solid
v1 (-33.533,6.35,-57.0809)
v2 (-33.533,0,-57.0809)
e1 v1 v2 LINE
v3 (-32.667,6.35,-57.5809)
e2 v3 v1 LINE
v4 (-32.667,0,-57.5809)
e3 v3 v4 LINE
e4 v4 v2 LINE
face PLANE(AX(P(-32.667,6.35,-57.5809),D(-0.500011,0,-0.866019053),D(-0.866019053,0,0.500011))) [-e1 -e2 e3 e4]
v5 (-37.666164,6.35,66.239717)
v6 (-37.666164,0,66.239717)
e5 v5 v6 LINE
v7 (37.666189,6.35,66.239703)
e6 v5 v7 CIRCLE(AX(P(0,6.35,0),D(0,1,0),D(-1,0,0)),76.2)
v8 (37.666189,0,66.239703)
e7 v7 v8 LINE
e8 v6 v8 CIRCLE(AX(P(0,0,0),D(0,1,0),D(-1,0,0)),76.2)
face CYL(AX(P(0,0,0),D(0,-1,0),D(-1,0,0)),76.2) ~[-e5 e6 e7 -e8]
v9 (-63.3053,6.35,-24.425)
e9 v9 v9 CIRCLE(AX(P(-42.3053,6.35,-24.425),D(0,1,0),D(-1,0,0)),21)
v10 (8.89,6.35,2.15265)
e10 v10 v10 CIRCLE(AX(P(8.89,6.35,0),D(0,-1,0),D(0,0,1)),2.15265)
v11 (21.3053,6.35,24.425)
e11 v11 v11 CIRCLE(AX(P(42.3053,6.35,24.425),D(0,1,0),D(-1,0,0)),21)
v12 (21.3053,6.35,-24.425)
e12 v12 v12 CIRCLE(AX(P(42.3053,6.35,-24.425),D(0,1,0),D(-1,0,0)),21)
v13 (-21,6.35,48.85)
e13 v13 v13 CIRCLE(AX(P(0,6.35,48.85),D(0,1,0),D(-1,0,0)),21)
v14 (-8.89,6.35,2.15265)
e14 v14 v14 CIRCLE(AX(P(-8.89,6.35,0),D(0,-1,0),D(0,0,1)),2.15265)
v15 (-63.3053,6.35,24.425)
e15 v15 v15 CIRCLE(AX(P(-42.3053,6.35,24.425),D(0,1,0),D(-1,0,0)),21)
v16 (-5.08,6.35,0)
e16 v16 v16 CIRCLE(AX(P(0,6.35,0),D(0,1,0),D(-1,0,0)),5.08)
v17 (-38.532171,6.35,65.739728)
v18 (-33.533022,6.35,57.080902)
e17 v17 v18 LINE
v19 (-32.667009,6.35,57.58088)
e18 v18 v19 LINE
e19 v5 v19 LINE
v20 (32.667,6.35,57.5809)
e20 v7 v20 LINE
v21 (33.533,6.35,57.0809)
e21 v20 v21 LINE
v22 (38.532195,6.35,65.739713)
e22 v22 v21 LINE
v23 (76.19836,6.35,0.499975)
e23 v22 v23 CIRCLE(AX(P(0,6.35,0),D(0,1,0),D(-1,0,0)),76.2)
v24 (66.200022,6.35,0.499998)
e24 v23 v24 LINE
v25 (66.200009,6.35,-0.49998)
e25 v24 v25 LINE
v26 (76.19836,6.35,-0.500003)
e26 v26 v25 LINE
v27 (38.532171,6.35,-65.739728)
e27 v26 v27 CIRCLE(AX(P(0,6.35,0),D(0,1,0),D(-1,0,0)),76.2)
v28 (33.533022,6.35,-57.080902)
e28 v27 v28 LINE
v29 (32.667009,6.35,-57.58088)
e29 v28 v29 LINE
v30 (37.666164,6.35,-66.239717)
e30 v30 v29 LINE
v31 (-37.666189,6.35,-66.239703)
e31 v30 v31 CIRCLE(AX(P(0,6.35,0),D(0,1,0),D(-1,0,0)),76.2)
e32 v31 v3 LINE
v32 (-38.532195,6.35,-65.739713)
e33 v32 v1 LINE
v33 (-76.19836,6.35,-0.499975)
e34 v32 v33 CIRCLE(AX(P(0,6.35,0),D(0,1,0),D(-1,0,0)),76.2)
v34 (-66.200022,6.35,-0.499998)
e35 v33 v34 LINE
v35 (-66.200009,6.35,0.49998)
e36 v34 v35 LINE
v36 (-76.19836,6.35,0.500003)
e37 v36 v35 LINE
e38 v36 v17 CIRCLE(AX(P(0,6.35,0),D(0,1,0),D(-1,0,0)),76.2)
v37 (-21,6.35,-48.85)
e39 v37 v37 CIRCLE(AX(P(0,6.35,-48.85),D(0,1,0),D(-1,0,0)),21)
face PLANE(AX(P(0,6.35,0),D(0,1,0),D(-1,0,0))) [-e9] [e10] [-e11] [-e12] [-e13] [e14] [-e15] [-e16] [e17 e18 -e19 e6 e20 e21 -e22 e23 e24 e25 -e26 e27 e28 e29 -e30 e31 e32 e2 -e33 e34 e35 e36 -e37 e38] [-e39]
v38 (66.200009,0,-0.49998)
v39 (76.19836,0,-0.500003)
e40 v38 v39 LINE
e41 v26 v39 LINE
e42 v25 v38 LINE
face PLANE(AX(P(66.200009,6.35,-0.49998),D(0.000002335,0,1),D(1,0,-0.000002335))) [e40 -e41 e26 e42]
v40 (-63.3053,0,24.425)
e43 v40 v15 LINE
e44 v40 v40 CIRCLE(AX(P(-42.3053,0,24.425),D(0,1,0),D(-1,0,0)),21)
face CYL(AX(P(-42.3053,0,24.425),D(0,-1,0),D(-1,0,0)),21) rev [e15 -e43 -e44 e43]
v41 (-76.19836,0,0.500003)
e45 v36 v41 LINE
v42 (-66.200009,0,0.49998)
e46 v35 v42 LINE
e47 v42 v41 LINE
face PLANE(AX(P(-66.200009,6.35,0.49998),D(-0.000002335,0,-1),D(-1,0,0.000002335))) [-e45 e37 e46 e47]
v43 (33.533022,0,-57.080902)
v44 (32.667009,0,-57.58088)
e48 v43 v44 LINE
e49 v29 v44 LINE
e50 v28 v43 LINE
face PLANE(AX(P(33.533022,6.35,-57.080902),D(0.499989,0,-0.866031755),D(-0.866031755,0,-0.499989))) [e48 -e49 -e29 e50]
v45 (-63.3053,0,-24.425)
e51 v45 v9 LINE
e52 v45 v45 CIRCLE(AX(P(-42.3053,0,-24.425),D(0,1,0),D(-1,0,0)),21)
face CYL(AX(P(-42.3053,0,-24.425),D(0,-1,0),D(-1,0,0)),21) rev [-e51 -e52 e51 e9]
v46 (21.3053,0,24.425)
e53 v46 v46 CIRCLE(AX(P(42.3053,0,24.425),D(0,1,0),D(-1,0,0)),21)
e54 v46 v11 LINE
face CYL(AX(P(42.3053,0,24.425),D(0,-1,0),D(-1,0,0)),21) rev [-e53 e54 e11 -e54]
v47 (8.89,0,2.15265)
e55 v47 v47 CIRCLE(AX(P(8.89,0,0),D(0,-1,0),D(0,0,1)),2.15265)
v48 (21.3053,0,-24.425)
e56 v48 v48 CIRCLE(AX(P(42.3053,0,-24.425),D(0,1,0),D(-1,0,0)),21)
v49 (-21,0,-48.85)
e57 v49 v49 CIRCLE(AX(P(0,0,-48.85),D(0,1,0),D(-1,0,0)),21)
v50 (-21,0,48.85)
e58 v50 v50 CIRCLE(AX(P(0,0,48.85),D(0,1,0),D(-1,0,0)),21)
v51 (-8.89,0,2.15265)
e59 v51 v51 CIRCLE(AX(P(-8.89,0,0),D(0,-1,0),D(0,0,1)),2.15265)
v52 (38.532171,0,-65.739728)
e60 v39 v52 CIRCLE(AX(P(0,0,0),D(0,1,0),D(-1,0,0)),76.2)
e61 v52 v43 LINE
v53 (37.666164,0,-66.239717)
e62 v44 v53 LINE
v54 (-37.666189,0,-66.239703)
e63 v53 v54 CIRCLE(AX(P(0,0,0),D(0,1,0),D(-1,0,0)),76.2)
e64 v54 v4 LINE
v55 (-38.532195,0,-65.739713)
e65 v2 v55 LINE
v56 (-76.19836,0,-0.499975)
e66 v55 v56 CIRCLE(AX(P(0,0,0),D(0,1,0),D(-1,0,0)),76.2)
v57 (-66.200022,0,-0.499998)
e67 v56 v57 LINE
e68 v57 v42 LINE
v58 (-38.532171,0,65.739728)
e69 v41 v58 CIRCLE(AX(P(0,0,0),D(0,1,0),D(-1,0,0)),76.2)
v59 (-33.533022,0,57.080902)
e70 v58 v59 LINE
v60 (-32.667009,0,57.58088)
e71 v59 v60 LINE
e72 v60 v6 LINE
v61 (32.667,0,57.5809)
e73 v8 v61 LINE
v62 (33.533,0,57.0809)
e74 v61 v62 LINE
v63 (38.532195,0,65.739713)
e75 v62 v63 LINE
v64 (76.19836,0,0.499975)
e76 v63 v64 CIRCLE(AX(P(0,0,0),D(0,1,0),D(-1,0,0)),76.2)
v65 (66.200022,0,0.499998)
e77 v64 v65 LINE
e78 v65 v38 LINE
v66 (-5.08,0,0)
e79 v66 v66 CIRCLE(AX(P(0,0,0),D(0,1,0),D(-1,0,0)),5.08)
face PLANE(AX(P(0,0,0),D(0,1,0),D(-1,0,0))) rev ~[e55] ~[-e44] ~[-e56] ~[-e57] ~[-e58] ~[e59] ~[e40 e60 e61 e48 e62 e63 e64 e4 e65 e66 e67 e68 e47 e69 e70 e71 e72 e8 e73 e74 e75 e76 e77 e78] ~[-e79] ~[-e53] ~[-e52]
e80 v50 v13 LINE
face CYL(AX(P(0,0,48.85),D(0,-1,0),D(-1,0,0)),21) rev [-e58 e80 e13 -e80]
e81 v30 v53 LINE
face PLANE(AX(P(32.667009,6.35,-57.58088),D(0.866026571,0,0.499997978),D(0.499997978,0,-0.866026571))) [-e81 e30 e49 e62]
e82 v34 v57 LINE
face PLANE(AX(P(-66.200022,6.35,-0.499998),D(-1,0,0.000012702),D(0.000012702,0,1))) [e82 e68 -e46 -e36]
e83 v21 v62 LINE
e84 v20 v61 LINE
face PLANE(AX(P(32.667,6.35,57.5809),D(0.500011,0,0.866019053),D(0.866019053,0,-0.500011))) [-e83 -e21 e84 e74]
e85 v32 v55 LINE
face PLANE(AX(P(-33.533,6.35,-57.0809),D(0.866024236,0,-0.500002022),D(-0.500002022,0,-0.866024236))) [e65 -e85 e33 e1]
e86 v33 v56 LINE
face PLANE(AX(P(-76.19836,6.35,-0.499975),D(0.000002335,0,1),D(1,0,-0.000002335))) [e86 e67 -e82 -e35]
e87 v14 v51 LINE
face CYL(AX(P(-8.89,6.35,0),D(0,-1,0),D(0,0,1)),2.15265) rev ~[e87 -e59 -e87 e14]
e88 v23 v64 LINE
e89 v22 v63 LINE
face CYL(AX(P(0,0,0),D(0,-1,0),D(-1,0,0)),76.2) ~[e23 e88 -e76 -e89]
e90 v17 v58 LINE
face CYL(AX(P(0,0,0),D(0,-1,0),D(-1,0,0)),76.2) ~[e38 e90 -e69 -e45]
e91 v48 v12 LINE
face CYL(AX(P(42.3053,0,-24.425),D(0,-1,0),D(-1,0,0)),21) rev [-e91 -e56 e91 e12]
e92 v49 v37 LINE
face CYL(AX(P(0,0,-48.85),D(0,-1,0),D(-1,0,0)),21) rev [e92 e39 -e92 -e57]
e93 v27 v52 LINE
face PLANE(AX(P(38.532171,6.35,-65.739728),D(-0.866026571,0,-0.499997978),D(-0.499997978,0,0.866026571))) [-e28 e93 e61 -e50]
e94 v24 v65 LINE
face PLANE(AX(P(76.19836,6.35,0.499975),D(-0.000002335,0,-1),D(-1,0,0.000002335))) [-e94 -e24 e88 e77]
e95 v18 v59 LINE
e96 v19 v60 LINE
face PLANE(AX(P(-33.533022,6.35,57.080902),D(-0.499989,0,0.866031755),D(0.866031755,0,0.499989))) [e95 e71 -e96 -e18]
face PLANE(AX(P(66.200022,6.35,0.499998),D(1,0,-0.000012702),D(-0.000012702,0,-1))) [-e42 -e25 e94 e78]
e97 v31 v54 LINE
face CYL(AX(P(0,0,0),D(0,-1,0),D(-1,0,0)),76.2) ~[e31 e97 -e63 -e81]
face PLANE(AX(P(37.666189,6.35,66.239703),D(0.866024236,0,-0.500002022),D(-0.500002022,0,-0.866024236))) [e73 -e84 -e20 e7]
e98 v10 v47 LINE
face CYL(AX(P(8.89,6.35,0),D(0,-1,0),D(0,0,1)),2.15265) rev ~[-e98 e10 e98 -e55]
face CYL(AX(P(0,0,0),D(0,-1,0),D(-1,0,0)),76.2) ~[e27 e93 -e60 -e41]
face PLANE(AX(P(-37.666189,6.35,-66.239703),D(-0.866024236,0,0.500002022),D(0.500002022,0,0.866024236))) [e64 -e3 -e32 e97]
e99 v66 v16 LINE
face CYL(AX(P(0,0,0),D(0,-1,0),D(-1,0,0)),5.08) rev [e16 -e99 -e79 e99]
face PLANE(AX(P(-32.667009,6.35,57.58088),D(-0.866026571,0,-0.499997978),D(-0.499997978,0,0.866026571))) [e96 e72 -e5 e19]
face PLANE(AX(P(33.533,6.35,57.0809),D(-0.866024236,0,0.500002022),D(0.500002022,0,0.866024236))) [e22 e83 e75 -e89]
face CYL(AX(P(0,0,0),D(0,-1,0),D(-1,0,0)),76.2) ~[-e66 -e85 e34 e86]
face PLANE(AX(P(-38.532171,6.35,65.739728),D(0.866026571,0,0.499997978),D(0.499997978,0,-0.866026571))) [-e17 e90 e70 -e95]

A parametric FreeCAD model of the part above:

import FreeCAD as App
import Part
import Sketcher
from FreeCAD import Vector
Q = App.Units.Quantity

doc = App.newDocument("Part")
body = doc.addObject("PartDesign::Body", "Body")

# Sketch on XZ plane
sketch1 = doc.addObject("Sketcher::SketchObject", "Sketch")
body.addObject(sketch1)
sketch1.AttachmentSupport = (doc.XZ_Plane, [""])
sketch1.MapMode = "FlatFace"
sketch1.addGeometry([
    Part.Circle(Vector(0, 0, 0), Vector(0, 0, 1), 76),  # 0
    Part.Circle(Vector(42, -24, 0), Vector(0, 0, 1), 21),  # 1
    Part.Circle(Vector(0, -49, 0), Vector(0, 0, 1), 21),  # 2
    Part.Circle(Vector(-42, -24, 0), Vector(0, 0, 1), 21),  # 3
    Part.Circle(Vector(42, 24, 0), Vector(0, 0, 1), 21),  # 4
    Part.Circle(Vector(0, 0, 0), Vector(0, 0, 1), 5),  # 5
    Part.Circle(Vector(-42, 24, 0), Vector(0, 0, 1), 21),  # 6
    Part.Circle(Vector(0, 49, 0), Vector(0, 0, 1), 21),  # 7
], False)
sketch1.addConstraint([
    Sketcher.Constraint("Coincident", 0, 3, -1, 1),
    Sketcher.Constraint("Coincident", 5, 3, -1, 1),
    Sketcher.Constraint("Equal", 1, 2),
    Sketcher.Constraint("Equal", 2, 3),
    Sketcher.Constraint("Equal", 3, 4),
    Sketcher.Constraint("Equal", 4, 6),
    Sketcher.Constraint("Equal", 6, 7),
    Sketcher.Constraint("Symmetric", 3, 3, 4, 3, -1, 1),
    Sketcher.Constraint("Symmetric", 1, 3, 6, 3, -1, 1),
    Sketcher.Constraint("Symmetric", 2, 3, 7, 3, -1, 1),
    Sketcher.Constraint("Symmetric", 1, 3, 3, 3, -2),
    Sketcher.Constraint("PointOnObject", 2, 3, -2),
    Sketcher.Constraint("Diameter", 0, Q("6 in")),
    Sketcher.Constraint("Diameter", 5, Q("0.4 in")),
    Sketcher.Constraint("Diameter", 1, Q("42 mm")),
    Sketcher.Constraint("DistanceY", 2, 3, -1, 1, Q("48.85 mm")),
    Sketcher.Constraint("DistanceY", 1, 3, 4, 3, Q("48.85 mm")),
    Sketcher.Constraint("DistanceX", -1, 1, 1, 3, Q("42.3053 mm")),
])
pad1 = doc.addObject("PartDesign::Pad", "Pad")
body.addObject(pad1)
pad1.Profile = sketch1
pad1.Length = Q("0.25 in")
pad1.Reversed = True

# Sketch on XZ plane
sketch2 = doc.addObject("Sketcher::SketchObject", "Sketch001")
body.addObject(sketch2)
sketch2.AttachmentSupport = (doc.XZ_Plane, [""])
sketch2.MapMode = "FlatFace"
sketch2.AttachmentOffset = App.Placement(Vector(0, 0, -0.25 * 25.4), App.Rotation())
sketch2.addGeometry([
    Part.Circle(Vector(-8.9, 0, 0), Vector(0, 0, 1), 2.2),
    Part.Circle(Vector(8.9, 0, 0), Vector(0, 0, 1), 2.2),
], False)
sketch2.addConstraint([
    Sketcher.Constraint("Equal", 0, 1),
    Sketcher.Constraint("Symmetric", 0, 3, 1, 3, -1, 1),
    Sketcher.Constraint("PointOnObject", 0, 3, -1),
    Sketcher.Constraint("Diameter", 0, Q("0.1695 in")),
    Sketcher.Constraint("DistanceX", 0, 3, 1, 3, Q("0.7 in")),
])
doc.recompute()
hole = doc.addObject("PartDesign::Hole", "Hole")
body.addObject(hole)
hole.Profile = sketch2
hole.ThreadType = "None"
hole.Diameter = Q("0.1695 in")
hole.DepthType = "ThroughAll"
hole.Reversed = True

# Sketch on XZ plane
sketch3 = doc.addObject("Sketcher::SketchObject", "Sketch002")
body.addObject(sketch3)
sketch3.AttachmentSupport = (doc.XZ_Plane, [""])
sketch3.MapMode = "FlatFace"
sketch3.AttachmentOffset = App.Placement(Vector(0, 0, -0.25 * 25.4), App.Rotation())
sketch3.addGeometry([
    Part.LineSegment(Vector(-32.7, -57.6, 0), Vector(-38.9, -68.4, 0)),
    Part.LineSegment(Vector(-38.9, -68.4, 0), Vector(-39.8, -67.9, 0)),
    Part.LineSegment(Vector(-39.8, -67.9, 0), Vector(-33.5, -57.1, 0)),
    Part.LineSegment(Vector(-33.5, -57.1, 0), Vector(-32.7, -57.6, 0)),
], False)
sketch3.addConstraint([
    Sketcher.Constraint("Coincident", 0, 2, 1, 1),
    Sketcher.Constraint("Coincident", 1, 2, 2, 1),
    Sketcher.Constraint("Coincident", 2, 2, 3, 1),
    Sketcher.Constraint("Coincident", 3, 2, 0, 1),
    Sketcher.Constraint("Perpendicular", 0, 1),
    Sketcher.Constraint("Perpendicular", 1, 2),
    Sketcher.Constraint("Perpendicular", 2, 3),
    Sketcher.Constraint("Angle", 2, Q("59.9999 deg")),
    Sketcher.Constraint("Distance", 1, Q("1 mm")),
    Sketcher.Constraint("Distance", 0, Q("0.4937 in")),
    Sketcher.Constraint("DistanceX", 2, 2, -1, 1, Q("1.3202 in")),
    Sketcher.Constraint("DistanceY", 0, 2, -1, 1, Q("68.4408 mm")),
])
pocket1 = doc.addObject("PartDesign::Pocket", "Pocket")
body.addObject(pocket1)
pocket1.Profile = sketch3
pocket1.Type = "ThroughAll"
pocket1.Reversed = True
doc.recompute()

polarpattern = doc.addObject("PartDesign::PolarPattern", "PolarPattern")
body.addObject(polarpattern)
polarpattern.Originals = [pocket1]
polarpattern.Axis = (doc.Y_Axis, [""])
polarpattern.Angle = 360
polarpattern.Occurrences = 6
body.Tip = polarpattern

doc.recompute()
